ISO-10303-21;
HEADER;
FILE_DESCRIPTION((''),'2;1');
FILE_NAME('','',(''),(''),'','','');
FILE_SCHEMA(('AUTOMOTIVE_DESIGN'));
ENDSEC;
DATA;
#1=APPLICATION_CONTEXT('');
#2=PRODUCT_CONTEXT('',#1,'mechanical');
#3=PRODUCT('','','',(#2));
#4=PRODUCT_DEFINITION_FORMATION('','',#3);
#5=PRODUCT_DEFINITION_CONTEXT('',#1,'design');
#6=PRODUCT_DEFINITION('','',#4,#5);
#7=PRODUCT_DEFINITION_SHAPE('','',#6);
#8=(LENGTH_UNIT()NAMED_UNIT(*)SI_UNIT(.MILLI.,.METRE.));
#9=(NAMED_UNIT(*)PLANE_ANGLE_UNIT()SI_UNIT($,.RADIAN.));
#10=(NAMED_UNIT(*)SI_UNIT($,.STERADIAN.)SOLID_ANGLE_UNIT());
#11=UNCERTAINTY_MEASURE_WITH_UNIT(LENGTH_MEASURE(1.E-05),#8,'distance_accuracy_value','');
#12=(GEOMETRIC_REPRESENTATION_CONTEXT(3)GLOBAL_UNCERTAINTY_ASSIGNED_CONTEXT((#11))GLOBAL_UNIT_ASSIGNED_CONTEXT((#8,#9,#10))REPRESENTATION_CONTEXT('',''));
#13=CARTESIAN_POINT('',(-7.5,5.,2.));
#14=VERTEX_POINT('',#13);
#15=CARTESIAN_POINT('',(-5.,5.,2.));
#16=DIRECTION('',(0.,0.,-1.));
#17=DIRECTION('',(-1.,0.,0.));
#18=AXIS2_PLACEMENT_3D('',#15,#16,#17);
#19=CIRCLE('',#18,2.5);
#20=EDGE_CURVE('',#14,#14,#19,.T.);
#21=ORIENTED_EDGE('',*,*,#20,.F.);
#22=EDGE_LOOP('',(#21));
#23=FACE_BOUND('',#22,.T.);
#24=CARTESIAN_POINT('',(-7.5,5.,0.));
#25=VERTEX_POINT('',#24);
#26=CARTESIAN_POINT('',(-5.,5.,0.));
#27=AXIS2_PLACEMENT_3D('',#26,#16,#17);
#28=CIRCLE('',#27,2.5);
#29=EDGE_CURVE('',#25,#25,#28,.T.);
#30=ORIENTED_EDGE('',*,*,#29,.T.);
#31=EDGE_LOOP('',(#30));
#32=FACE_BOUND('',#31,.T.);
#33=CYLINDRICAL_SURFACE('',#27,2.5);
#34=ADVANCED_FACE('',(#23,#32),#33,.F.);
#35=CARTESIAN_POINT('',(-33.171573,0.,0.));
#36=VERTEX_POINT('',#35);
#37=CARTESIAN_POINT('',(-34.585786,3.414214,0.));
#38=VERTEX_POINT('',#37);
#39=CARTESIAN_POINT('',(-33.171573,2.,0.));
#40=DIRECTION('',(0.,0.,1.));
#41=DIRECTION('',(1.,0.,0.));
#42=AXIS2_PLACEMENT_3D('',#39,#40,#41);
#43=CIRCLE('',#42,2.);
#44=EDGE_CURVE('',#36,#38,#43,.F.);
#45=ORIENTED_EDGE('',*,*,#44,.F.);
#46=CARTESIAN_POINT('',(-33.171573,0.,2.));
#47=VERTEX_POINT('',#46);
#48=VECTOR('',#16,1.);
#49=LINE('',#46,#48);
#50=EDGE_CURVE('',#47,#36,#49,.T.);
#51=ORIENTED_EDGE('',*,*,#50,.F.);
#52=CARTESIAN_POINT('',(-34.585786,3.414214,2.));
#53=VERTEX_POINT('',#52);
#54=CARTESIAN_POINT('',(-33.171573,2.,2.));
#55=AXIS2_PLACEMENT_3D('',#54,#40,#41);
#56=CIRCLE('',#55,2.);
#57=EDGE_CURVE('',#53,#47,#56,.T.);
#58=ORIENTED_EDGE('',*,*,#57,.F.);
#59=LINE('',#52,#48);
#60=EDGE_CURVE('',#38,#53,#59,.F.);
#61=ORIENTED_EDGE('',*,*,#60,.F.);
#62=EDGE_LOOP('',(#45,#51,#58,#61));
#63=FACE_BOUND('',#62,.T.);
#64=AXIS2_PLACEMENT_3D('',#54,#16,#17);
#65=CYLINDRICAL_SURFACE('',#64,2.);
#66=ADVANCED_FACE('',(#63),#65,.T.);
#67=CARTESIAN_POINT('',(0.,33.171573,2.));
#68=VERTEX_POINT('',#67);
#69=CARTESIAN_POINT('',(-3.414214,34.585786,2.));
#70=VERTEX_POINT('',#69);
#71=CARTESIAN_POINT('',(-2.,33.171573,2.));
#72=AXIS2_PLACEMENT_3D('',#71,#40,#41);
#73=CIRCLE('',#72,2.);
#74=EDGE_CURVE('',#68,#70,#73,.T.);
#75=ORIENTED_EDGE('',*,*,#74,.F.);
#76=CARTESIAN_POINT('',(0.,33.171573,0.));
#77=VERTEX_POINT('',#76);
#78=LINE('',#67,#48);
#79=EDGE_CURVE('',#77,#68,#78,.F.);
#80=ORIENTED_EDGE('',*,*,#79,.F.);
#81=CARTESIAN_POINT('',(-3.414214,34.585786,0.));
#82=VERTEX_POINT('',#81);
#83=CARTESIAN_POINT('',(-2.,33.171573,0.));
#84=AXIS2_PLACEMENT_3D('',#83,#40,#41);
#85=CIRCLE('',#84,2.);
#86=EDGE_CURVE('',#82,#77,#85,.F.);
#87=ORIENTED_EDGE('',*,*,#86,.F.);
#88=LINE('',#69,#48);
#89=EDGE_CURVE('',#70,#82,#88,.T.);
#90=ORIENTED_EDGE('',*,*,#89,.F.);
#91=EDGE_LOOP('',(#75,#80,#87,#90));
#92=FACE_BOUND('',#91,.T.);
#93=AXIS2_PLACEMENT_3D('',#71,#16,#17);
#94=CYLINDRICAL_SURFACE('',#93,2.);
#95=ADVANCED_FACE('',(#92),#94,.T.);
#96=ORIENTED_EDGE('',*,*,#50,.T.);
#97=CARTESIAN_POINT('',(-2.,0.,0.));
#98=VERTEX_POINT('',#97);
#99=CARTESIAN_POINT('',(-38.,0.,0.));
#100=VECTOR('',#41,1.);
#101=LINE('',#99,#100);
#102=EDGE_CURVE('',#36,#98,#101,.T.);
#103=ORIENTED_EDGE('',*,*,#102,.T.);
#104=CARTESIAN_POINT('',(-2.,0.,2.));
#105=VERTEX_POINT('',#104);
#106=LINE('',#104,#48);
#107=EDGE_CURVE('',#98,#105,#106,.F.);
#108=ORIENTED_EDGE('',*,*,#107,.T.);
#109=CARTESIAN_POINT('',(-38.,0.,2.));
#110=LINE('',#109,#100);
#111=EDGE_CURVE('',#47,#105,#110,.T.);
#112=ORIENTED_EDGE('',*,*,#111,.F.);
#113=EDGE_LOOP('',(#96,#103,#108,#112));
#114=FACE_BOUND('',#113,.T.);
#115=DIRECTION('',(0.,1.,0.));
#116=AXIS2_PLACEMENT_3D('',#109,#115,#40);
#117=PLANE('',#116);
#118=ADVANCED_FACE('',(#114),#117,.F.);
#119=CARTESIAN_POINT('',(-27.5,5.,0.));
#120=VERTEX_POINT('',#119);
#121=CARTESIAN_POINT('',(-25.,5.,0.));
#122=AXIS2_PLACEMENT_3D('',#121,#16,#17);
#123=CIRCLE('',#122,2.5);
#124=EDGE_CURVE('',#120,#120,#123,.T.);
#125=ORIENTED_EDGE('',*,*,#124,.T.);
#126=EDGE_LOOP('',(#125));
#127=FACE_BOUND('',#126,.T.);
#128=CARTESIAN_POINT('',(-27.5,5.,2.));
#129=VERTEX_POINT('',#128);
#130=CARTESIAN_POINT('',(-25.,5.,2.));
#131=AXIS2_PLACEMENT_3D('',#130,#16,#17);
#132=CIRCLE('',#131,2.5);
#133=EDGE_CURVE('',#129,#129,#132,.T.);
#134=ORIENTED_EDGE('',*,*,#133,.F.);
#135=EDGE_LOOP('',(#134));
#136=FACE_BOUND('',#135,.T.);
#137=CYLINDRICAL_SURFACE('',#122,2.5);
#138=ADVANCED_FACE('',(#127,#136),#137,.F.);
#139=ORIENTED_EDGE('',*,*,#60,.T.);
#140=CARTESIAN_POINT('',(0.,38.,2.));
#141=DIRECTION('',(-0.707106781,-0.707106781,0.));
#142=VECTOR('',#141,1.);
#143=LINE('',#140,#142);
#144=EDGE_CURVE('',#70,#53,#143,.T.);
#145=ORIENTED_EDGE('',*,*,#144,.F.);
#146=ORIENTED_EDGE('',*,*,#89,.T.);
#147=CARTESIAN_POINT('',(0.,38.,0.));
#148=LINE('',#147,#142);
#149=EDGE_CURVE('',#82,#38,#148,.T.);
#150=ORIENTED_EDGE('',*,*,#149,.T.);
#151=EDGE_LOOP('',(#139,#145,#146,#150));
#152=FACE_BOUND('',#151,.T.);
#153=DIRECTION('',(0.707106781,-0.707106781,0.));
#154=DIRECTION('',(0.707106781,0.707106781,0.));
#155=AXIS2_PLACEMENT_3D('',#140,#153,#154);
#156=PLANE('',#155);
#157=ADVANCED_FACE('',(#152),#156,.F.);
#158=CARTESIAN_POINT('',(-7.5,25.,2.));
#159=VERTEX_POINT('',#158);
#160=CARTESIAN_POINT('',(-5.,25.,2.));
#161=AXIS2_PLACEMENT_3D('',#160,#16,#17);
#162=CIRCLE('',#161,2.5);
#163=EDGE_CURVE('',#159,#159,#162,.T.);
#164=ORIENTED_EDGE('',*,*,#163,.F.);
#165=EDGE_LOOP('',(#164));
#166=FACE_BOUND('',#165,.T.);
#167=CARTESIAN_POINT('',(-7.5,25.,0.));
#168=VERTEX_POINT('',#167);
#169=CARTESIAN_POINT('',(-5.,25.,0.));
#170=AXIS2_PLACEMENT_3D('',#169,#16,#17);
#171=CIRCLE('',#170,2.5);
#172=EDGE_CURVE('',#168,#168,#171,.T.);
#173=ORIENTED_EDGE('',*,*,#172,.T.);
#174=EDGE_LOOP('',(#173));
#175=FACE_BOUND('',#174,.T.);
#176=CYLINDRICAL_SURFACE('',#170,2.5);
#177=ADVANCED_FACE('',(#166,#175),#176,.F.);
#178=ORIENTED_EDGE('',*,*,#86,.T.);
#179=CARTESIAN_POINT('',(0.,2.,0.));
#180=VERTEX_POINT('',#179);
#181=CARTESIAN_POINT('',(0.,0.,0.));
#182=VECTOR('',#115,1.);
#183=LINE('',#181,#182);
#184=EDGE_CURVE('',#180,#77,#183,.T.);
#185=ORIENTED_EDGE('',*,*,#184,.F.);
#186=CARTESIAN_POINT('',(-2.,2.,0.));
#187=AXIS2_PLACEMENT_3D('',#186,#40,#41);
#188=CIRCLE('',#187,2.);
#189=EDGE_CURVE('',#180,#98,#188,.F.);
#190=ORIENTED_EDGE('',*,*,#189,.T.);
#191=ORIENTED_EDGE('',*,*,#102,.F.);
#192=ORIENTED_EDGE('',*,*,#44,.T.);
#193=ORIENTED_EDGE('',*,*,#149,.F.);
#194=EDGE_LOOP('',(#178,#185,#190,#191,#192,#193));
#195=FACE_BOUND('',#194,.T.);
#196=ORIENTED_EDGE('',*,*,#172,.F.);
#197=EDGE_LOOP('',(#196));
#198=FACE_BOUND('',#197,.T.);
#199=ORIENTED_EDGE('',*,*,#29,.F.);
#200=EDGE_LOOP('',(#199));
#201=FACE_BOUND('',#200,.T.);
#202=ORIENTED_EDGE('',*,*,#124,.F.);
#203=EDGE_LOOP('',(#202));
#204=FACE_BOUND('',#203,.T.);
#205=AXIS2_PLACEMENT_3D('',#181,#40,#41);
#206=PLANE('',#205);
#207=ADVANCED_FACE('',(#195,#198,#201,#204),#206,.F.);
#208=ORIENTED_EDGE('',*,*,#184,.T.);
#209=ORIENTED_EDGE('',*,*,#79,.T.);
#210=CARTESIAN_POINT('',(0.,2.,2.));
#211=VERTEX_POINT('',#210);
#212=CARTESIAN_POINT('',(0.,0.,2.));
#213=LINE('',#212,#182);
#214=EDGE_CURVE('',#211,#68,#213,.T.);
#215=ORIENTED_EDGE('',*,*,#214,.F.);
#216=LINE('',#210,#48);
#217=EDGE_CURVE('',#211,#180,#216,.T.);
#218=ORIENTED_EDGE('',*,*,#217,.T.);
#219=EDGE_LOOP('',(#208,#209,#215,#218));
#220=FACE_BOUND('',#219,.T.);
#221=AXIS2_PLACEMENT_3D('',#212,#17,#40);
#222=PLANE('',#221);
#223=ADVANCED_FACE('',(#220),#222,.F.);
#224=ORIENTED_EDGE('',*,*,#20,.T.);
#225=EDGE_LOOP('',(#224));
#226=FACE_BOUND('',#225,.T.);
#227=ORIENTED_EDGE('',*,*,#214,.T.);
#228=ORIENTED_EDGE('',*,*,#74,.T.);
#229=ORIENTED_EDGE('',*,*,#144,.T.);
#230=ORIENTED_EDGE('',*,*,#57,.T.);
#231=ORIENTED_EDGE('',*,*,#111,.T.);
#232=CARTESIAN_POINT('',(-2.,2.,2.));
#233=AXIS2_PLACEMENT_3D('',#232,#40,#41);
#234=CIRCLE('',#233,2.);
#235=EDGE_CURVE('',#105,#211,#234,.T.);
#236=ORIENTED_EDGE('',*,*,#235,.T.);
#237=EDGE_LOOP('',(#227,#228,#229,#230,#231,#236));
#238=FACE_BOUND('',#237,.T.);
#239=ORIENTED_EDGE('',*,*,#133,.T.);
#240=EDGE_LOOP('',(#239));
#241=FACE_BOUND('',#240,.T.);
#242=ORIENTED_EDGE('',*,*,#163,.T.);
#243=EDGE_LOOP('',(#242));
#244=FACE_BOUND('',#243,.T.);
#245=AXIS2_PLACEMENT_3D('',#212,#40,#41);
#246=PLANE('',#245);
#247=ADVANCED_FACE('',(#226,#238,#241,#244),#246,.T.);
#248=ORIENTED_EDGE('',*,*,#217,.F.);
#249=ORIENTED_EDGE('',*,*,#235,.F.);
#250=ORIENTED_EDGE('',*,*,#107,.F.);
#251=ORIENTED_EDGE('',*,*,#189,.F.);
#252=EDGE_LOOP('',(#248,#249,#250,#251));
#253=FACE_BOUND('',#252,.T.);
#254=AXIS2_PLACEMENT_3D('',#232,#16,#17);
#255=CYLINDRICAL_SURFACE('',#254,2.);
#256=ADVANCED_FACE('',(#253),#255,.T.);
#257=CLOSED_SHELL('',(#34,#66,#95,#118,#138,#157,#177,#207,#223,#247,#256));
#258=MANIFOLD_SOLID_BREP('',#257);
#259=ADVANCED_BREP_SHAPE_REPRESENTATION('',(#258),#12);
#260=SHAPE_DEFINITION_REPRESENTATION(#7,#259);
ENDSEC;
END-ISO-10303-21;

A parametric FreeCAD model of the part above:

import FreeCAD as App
import Part
import Sketcher

V = App.Vector


def edges_at(feature, points):
    """Names of the edges that pass closest to the given points."""
    edges = feature.Shape.Edges
    near = lambda p: min(range(len(edges)), key=lambda i: edges[i].distToShape(Part.Vertex(*p))[0])
    return sorted({f"Edge{near(p) + 1}" for p in points})


def add_polygon(sketch, points):
    """Adds a closed chain of lines whose ends are joined by coincident constraints."""
    first, n = sketch.GeometryCount, len(points)
    for a, b in zip(points, points[1:] + points[:1]):
        sketch.addGeometry(Part.LineSegment(App.Vector(*a, 0), App.Vector(*b, 0)), False)
    for i in range(n):
        sketch.addConstraint(Sketcher.Constraint("Coincident", first + i, 2, first + (i + 1) % n, 1))

doc = App.newDocument("Part")
body = doc.addObject("PartDesign::Body", "Body")

# Sketch on XY plane
sketch1 = body.newObject("Sketcher::SketchObject", "Sketch")
sketch1.AttachmentSupport = (doc.getObject("XY_Plane"), [""])
sketch1.MapMode = "FlatFace"
add_polygon(sketch1, [(0, 0), (0, 38), (-38, 0)])  # lines 0-2
sketch1.addConstraint([
    Sketcher.Constraint("Vertical", 0),
    Sketcher.Constraint("Horizontal", 2),
    Sketcher.Constraint("Coincident", 2, 2, -1, 1),
    Sketcher.Constraint("Equal", 2, 0),
    Sketcher.Constraint("DistanceX", 2, 1, 2, 2, 38.0),
])
pad1 = body.newObject("PartDesign::Pad", "Pad")
pad1.Profile = sketch1
pad1.Length = 2

# Sketch on XY plane
sketch2 = body.newObject("Sketcher::SketchObject", "Sketch001")
sketch2.AttachmentSupport = (doc.getObject("XY_Plane"), [""])
sketch2.MapMode = "FlatFace"
sketch2.addGeometry([
    Part.Circle(V(-5, 25, 0), V(0, 0, 1), 2.5),
    Part.Circle(V(-5, 5, 0), V(0, 0, 1), 2.5),
    Part.Circle(V(-25, 5, 0), V(0, 0, 1), 2.5),
], False)
sketch2.addConstraint([
    Sketcher.Constraint("Equal", 0, 1),
    Sketcher.Constraint("Equal", 1, 2),
    Sketcher.Constraint("Horizontal", 1, 3, 2, 3),
    Sketcher.Constraint("Vertical", 0, 3, 1, 3),
    Sketcher.Constraint("Diameter", 0, 5.0),
    Sketcher.Constraint("DistanceX", 0, 3, -1, 1, 5.0),
    Sketcher.Constraint("DistanceY", -1, 1, 0, 3, 25.0),
    Sketcher.Constraint("DistanceY", -1, 1, 1, 3, 5.0),
    Sketcher.Constraint("DistanceX", 2, 3, -1, 1, 25.0),
])
doc.recompute()
hole = body.newObject("PartDesign::Hole", "Hole")
hole.Profile = sketch2
hole.ThreadType = "None"
hole.Diameter = 5
hole.DepthType = "ThroughAll"
hole.Reversed = True
doc.recompute()

fillet = body.newObject("PartDesign::Fillet", "Fillet")
fillet.Base = (hole, edges_at(hole, [(-38, 0, 1), (0, 38, 1), (0, 0, 1)]))
fillet.Radius = 2

doc.recompute()
